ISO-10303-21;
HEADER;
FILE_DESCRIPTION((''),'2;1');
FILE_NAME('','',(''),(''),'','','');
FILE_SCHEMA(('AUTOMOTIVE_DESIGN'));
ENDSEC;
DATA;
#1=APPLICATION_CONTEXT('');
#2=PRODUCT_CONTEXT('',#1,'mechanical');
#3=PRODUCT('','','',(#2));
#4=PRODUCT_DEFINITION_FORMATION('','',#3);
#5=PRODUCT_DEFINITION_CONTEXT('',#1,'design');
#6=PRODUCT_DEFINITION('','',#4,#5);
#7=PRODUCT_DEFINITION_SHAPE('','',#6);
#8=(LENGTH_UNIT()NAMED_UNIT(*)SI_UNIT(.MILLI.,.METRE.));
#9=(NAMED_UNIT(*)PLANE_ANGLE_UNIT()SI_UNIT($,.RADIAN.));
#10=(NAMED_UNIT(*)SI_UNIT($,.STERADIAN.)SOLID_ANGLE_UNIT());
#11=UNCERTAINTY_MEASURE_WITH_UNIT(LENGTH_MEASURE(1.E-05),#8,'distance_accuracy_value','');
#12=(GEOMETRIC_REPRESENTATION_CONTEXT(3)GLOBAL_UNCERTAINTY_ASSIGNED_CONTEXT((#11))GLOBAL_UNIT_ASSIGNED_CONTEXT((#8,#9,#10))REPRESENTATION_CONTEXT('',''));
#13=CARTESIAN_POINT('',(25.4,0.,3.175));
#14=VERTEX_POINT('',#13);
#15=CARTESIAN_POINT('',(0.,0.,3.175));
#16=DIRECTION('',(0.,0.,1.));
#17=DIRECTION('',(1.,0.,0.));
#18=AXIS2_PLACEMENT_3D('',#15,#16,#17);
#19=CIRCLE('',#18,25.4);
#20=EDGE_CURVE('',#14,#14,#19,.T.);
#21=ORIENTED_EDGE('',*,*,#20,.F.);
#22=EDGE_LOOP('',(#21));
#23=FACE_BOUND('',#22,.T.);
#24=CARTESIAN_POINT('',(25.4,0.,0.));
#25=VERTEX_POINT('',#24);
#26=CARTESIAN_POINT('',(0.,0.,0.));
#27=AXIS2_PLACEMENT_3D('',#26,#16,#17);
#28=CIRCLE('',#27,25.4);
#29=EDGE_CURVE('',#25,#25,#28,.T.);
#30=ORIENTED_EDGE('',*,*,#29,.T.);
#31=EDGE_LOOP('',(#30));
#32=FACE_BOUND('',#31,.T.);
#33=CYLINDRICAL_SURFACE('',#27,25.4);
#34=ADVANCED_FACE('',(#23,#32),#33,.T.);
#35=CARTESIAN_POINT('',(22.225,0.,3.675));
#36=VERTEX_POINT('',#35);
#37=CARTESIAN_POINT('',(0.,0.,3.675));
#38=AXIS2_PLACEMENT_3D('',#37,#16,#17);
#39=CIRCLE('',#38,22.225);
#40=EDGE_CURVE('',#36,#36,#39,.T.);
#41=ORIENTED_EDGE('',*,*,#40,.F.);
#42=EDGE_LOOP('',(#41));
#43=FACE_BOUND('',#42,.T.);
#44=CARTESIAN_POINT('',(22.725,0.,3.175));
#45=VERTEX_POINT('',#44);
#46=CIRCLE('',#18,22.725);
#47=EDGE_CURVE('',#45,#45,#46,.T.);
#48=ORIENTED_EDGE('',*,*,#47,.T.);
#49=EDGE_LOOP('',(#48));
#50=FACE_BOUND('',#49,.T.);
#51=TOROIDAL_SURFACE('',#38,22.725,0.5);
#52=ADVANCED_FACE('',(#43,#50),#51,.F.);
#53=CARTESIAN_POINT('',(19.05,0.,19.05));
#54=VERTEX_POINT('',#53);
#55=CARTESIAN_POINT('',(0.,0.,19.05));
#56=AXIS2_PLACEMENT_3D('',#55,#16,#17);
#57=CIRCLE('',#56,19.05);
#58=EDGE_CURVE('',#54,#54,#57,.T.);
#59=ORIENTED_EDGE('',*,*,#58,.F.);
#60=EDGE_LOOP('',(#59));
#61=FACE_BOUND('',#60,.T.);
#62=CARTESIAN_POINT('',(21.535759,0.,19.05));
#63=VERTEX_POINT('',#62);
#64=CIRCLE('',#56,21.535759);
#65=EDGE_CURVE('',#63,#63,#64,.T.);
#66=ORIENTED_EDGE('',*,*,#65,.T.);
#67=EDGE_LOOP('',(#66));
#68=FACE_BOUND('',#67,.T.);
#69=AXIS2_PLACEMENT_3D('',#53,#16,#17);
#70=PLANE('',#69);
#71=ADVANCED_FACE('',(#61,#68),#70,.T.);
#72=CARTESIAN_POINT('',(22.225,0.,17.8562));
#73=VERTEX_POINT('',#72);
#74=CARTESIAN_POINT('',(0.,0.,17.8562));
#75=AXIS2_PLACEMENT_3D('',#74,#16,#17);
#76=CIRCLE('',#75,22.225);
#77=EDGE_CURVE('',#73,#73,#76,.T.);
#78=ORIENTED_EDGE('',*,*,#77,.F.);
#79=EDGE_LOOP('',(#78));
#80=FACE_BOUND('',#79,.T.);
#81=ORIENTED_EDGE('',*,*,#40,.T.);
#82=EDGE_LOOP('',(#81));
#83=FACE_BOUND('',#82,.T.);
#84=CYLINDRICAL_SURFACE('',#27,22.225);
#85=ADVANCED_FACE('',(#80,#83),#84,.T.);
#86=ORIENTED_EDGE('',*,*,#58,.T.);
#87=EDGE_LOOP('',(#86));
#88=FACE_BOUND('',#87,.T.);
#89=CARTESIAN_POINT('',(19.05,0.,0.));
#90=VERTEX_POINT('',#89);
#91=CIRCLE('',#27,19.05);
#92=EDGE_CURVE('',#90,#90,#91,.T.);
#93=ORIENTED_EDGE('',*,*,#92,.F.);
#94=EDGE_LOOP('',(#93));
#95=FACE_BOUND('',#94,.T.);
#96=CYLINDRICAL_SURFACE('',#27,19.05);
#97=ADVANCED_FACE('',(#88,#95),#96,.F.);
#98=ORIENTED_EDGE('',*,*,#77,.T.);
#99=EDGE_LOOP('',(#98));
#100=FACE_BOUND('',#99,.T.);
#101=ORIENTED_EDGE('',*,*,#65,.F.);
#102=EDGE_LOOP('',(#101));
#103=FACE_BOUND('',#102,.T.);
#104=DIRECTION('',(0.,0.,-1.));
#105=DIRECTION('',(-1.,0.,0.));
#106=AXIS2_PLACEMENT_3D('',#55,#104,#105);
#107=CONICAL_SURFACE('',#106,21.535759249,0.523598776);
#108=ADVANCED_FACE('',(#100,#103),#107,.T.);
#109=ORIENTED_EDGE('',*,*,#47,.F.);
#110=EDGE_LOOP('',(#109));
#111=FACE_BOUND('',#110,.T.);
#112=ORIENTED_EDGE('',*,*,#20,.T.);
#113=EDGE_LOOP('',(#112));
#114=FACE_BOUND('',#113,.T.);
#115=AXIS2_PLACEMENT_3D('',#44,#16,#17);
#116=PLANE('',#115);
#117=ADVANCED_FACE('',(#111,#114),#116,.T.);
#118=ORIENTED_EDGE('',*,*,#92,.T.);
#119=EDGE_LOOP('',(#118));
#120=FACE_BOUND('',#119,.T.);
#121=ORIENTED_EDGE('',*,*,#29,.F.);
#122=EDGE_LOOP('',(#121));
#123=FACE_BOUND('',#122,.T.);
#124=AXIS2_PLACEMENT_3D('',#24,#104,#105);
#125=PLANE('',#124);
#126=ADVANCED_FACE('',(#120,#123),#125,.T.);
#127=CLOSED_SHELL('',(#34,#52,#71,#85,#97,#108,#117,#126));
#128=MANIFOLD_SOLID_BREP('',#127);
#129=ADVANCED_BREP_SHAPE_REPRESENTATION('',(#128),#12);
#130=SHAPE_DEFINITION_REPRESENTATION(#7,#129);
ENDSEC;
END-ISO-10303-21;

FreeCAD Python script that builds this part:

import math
import FreeCAD as App
import Part
import Sketcher
Q = App.Units.Quantity

doc = App.newDocument("Part")
body = doc.addObject("PartDesign::Body", "Body")

sketch1 = body.newObject("Sketcher::SketchObject", "Sketch")
sketch1.AttachmentSupport = (doc.getObject("XZ_Plane"), [""])
sketch1.MapMode = "FlatFace"
sketch1.addGeometry(Part.LineSegment(App.Vector(25.4, 0, 0), App.Vector(19.05, 0, 0)), False)
sketch1.addGeometry(Part.LineSegment(App.Vector(19.05, 0, 0), App.Vector(19.05, 19.05, 0)), False)
sketch1.addGeometry(Part.LineSegment(App.Vector(19.05, 19.05, 0), App.Vector(21.54, 19.05, 0)), False)
sketch1.addGeometry(Part.LineSegment(App.Vector(21.54, 19.05, 0), App.Vector(22.23, 17.86, 0)), False)
sketch1.addGeometry(Part.LineSegment(App.Vector(22.23, 17.86, 0), App.Vector(22.23, 3.67, 0)), False)
sketch1.addGeometry(Part.ArcOfCircle(Part.Circle(App.Vector(22.72, 3.67, 0), App.Vector(0, 0, 1), 0.5), math.radians(180), math.radians(270)), False)
sketch1.addGeometry(Part.LineSegment(App.Vector(22.73, 3.17, 0), App.Vector(25.4, 3.17, 0)), False)
sketch1.addGeometry(Part.LineSegment(App.Vector(25.4, 3.17, 0), App.Vector(25.4, 0, 0)), False)
sketch1.addConstraint(Sketcher.Constraint("Coincident", 0, 2, 1, 1))
sketch1.addConstraint(Sketcher.Constraint("Coincident", 1, 2, 2, 1))
sketch1.addConstraint(Sketcher.Constraint("Coincident", 2, 2, 3, 1))
sketch1.addConstraint(Sketcher.Constraint("Coincident", 3, 2, 4, 1))
sketch1.addConstraint(Sketcher.Constraint("Tangent", 4, 2, 5, 1))
sketch1.addConstraint(Sketcher.Constraint("Tangent", 5, 2, 6, 1))
sketch1.addConstraint(Sketcher.Constraint("Coincident", 6, 2, 7, 1))
sketch1.addConstraint(Sketcher.Constraint("Coincident", 7, 2, 0, 1))
sketch1.addConstraint(Sketcher.Constraint("Horizontal", 0))
sketch1.addConstraint(Sketcher.Constraint("Vertical", 1))
sketch1.addConstraint(Sketcher.Constraint("Horizontal", 2))
sketch1.addConstraint(Sketcher.Constraint("Vertical", 4))
sketch1.addConstraint(Sketcher.Constraint("Horizontal", 6))
sketch1.addConstraint(Sketcher.Constraint("Vertical", 7))
sketch1.addConstraint(Sketcher.Constraint("PointOnObject", 0, 2, -1))
sketch1.addConstraint(Sketcher.Constraint("DistanceX", -1, 1, 6, 2, Q("1 in")))
sketch1.addConstraint(Sketcher.Constraint("Angle", 3, Q("-60 deg")))
sketch1.addConstraint(Sketcher.Constraint("DistanceX", 0, 2, 0, 1, Q("0.25 in")))
sketch1.addConstraint(Sketcher.Constraint("DistanceY", 1, 1, 1, 2, Q("0.75 in")))
sketch1.addConstraint(Sketcher.Constraint("DistanceY", 7, 2, 7, 1, Q("0.125 in")))
sketch1.addConstraint(Sketcher.Constraint("Radius", 5, 0.5))
sketch1.addConstraint(Sketcher.Constraint("DistanceX", -1, 1, 3, 2, Q("0.875 in")))
sketch1.addConstraint(Sketcher.Constraint("DistanceY", -1, 1, 3, 2, Q("0.703 in")))
revolution = body.newObject("PartDesign::Revolution", "Revolution")
revolution.Profile = sketch1
revolution.ReferenceAxis = (sketch1, ["V_Axis"])
revolution.Angle = 360

doc.recompute()
